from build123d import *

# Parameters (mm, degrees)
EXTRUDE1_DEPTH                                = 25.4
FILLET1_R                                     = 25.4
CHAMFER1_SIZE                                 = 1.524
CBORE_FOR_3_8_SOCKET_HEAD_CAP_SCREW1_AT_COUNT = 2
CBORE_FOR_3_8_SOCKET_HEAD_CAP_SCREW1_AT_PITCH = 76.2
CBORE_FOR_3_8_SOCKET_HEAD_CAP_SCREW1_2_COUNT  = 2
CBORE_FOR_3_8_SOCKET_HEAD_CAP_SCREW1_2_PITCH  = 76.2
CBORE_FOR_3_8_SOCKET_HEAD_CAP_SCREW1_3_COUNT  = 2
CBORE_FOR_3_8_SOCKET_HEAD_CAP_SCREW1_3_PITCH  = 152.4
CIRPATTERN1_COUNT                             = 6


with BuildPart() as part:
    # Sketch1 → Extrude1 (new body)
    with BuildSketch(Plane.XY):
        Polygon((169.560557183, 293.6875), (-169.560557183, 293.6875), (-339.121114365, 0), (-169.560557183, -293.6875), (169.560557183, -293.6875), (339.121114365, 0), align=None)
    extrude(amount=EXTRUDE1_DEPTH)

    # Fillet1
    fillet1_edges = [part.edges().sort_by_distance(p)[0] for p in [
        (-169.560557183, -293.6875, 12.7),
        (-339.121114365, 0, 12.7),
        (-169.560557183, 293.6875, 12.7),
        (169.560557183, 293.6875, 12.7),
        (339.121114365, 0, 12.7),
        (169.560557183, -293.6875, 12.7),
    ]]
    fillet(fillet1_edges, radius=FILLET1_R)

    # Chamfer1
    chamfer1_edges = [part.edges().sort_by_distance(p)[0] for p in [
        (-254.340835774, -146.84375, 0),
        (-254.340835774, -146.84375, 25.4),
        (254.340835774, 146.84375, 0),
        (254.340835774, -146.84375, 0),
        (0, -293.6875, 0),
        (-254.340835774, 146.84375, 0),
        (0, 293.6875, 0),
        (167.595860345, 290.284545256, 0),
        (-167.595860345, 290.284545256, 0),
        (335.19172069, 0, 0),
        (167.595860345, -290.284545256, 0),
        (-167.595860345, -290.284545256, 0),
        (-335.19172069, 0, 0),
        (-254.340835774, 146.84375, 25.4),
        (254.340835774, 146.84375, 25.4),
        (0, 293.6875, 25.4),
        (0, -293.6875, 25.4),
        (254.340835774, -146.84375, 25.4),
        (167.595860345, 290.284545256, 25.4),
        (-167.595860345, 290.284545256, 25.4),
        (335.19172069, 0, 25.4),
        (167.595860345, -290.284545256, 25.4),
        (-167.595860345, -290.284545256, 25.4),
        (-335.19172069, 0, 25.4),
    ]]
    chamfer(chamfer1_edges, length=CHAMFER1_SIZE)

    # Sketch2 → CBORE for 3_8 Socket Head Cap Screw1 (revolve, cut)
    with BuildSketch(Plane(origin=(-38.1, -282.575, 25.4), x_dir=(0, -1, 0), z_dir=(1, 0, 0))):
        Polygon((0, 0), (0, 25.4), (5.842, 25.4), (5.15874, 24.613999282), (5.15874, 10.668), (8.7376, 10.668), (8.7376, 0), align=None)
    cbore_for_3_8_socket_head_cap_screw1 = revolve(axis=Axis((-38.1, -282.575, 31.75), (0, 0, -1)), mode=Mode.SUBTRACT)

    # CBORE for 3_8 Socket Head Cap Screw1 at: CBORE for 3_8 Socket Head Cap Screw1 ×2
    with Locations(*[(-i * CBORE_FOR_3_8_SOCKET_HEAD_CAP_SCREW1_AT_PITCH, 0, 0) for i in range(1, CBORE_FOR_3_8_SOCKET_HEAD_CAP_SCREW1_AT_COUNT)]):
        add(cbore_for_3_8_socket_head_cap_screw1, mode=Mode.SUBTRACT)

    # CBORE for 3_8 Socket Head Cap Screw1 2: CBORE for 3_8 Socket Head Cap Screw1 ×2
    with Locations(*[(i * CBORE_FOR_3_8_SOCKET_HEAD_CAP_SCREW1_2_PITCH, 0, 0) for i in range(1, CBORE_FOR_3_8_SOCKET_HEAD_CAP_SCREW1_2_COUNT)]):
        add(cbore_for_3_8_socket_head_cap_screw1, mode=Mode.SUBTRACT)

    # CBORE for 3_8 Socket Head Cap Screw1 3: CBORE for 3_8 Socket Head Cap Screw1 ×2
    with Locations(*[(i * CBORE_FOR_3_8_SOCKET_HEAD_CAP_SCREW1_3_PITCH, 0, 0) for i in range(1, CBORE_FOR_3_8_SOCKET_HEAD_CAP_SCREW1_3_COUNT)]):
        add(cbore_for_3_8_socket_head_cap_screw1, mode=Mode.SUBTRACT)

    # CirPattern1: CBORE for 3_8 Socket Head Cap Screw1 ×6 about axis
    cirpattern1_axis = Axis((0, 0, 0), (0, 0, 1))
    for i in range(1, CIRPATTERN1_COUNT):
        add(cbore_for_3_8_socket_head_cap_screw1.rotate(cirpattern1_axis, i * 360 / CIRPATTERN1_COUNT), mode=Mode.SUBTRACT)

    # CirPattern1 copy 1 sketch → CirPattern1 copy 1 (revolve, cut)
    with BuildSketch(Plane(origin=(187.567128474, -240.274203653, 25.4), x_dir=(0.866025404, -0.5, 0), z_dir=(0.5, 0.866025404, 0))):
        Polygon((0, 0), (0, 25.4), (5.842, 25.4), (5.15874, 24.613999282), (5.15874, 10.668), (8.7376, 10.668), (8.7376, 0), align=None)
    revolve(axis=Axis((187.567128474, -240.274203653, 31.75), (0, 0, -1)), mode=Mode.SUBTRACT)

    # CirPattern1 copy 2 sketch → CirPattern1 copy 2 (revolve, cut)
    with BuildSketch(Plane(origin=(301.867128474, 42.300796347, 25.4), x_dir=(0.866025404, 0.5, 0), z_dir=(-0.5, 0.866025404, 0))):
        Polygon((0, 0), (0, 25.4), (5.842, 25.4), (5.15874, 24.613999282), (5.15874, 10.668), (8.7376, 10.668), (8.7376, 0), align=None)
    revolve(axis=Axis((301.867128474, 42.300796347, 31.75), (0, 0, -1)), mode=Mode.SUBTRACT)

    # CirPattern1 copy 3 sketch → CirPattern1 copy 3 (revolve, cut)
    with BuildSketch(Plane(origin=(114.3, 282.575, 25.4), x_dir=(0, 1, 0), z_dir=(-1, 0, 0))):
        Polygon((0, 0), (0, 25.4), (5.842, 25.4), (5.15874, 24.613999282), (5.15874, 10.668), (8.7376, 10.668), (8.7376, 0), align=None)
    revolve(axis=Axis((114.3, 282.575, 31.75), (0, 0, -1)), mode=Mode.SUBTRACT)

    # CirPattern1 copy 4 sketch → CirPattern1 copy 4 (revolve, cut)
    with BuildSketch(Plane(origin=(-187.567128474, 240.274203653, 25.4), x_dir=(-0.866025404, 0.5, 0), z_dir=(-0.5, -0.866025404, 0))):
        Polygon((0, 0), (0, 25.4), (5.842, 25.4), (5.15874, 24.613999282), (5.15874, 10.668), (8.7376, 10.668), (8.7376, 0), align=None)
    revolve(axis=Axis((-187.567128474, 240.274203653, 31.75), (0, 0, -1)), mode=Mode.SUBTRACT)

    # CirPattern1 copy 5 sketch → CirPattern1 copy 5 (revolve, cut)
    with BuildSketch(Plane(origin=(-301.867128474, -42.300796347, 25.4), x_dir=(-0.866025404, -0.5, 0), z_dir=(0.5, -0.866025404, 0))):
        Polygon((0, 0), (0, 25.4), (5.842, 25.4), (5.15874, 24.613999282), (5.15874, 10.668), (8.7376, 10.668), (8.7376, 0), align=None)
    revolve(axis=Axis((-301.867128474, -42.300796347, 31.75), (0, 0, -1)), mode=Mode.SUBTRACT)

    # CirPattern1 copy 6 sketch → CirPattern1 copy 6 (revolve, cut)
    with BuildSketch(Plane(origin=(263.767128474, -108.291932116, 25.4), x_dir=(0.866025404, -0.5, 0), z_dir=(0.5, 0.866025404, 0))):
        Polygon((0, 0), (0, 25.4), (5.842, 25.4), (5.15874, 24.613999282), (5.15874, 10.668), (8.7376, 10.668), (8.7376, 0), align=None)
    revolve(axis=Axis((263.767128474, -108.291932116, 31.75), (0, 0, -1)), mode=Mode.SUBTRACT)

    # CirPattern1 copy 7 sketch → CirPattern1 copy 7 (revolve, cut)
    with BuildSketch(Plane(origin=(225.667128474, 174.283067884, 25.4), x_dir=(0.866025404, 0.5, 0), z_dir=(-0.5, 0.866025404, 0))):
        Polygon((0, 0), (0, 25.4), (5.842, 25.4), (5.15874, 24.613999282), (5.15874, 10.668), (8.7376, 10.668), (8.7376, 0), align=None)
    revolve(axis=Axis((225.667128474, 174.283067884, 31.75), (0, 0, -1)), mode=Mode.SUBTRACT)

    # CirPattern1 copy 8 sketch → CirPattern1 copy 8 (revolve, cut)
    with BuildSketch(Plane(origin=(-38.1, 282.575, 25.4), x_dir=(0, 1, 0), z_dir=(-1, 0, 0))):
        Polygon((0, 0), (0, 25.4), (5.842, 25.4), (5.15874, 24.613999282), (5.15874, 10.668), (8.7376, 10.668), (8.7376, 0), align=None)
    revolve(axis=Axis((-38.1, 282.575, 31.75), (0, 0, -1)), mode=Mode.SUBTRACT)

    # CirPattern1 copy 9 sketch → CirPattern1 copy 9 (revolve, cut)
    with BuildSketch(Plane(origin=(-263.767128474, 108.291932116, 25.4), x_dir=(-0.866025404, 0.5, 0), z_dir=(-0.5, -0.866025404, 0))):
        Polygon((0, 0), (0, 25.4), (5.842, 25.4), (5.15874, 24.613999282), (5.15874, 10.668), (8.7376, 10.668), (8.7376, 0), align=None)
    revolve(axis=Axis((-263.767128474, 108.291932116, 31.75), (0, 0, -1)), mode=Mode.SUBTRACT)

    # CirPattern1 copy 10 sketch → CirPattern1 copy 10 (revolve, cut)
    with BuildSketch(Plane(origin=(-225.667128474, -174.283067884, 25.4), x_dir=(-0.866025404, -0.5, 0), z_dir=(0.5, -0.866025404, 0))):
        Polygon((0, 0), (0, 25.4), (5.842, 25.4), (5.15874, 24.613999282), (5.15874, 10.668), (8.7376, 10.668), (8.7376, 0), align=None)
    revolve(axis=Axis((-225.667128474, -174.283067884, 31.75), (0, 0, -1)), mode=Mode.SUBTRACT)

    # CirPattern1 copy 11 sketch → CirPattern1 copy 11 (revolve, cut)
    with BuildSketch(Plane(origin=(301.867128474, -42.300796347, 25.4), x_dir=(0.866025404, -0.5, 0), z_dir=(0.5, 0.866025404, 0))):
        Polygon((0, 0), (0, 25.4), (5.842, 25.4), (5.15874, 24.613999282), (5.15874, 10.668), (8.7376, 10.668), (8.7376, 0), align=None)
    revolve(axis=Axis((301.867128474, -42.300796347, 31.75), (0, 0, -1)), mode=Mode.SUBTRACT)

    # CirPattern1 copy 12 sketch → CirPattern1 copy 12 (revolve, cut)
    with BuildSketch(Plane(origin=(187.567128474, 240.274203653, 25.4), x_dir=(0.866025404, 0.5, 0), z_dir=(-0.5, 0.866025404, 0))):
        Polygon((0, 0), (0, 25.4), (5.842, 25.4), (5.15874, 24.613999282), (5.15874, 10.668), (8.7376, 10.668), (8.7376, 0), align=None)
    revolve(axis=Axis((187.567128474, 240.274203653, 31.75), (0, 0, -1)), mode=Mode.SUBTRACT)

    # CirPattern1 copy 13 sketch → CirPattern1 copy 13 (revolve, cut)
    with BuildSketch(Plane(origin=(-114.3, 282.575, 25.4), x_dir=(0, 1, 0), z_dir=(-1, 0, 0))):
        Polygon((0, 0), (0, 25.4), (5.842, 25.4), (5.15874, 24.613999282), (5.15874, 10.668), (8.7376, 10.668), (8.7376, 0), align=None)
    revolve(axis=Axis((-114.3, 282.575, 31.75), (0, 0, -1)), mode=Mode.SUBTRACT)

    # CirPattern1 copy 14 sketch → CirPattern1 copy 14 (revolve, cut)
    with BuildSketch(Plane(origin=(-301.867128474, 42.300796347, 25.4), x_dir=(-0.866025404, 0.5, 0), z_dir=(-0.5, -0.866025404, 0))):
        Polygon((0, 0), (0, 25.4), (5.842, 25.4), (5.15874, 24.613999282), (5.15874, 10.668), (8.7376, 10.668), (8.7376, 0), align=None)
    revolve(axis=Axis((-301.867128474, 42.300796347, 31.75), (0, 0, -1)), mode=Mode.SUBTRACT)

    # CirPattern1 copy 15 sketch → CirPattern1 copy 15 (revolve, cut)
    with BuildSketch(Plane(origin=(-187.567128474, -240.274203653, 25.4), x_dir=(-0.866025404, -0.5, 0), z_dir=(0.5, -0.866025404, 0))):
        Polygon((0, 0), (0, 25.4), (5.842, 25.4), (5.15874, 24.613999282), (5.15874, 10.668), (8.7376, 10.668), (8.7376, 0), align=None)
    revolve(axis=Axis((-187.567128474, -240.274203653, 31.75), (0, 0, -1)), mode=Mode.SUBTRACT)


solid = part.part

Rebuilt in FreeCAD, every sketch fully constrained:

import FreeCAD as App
import Part
import Sketcher
Q = App.Units.Quantity


def edges_at(feature, points):
    """Names of the edges that pass closest to the given points."""
    edges = feature.Shape.Edges
    near = lambda p: min(range(len(edges)), key=lambda i: edges[i].distToShape(Part.Vertex(*p))[0])
    return sorted({f"Edge{near(p) + 1}" for p in points})

doc = App.newDocument("Part")
body = doc.addObject("PartDesign::Body", "Body")

# Sketch on XY plane
sketch1 = body.newObject("Sketcher::SketchObject", "Sketch")
sketch1.AttachmentSupport = (doc.getObject("XY_Plane"), [""])
sketch1.MapMode = "FlatFace"
sketch1.addGeometry([
    Part.LineSegment(App.Vector(170, 294, 0), App.Vector(-170, 294, 0)),  # 0
    Part.LineSegment(App.Vector(-170, 294, 0), App.Vector(-339, 0, 0)),  # 1
    Part.LineSegment(App.Vector(-339, 0, 0), App.Vector(-170, -294, 0)),  # 2
    Part.LineSegment(App.Vector(-170, -294, 0), App.Vector(170, -294, 0)),  # 3
    Part.LineSegment(App.Vector(170, -294, 0), App.Vector(339, 0, 0)),  # 4
    Part.LineSegment(App.Vector(339, 0, 0), App.Vector(170, 294, 0)),  # 5
], False)
sketch1.addConstraint([
    Sketcher.Constraint("Coincident", 0, 2, 1, 1),
    Sketcher.Constraint("Coincident", 1, 2, 2, 1),
    Sketcher.Constraint("Coincident", 2, 2, 3, 1),
    Sketcher.Constraint("Coincident", 3, 2, 4, 1),
    Sketcher.Constraint("Coincident", 4, 2, 5, 1),
    Sketcher.Constraint("Coincident", 5, 2, 0, 1),
    Sketcher.Constraint("Horizontal", 0),
    Sketcher.Constraint("Horizontal", 3),
    Sketcher.Constraint("Symmetric", 0, 2, 3, 2, -1, 1),
    Sketcher.Constraint("Symmetric", 1, 2, 4, 2, -1, 1),
    Sketcher.Constraint("PointOnObject", 1, 2, -1),
    Sketcher.Constraint("Parallel", 2, 5),
    Sketcher.Constraint("Vertical", 0, 2, 2, 2),
    Sketcher.Constraint("Angle", 1, Q("-120 deg")),
    Sketcher.Constraint("DistanceY", -1, 1, 0, 2, Q("11.5625 in")),
    Sketcher.Constraint("DistanceX", 0, 2, 0, 1, 339.121114),
])
pad1 = body.newObject("PartDesign::Pad", "Pad")
pad1.Profile = sketch1
pad1.Length = Q("1 in")
doc.recompute()

fillet = body.newObject("PartDesign::Fillet", "Fillet")
fillet.Base = (pad1, edges_at(pad1, [
    (-169.561, -293.688, 12.7),
    (-339.121, 0, 12.7),
    (-169.561, 293.688, 12.7),
    (169.561, 293.688, 12.7),
    (339.121, 0, 12.7),
    (169.561, -293.688, 12.7),
]))
fillet.Radius = Q("1 in")
doc.recompute()

chamfer = body.newObject("PartDesign::Chamfer", "Chamfer")
chamfer.Base = (fillet, edges_at(fillet, [
    (-254.341, -146.844, 0),
    (-254.341, -146.844, 25.4),
    (254.341, 146.844, 0),
    (254.341, -146.844, 0),
    (0, -293.688, 0),
    (-254.341, 146.844, 0),
    (0, 293.688, 0),
    (167.596, 290.285, 0),
    (-167.596, 290.285, 0),
    (335.192, 0, 0),
    (167.596, -290.285, 0),
    (-167.596, -290.285, 0),
    (-335.192, 0, 0),
    (-254.341, 146.844, 25.4),
    (254.341, 146.844, 25.4),
    (0, 293.688, 25.4),
    (0, -293.688, 25.4),
    (254.341, -146.844, 25.4),
    (167.596, 290.285, 25.4),
    (-167.596, 290.285, 25.4),
    (335.192, 0, 25.4),
    (167.596, -290.285, 25.4),
    (-167.596, -290.285, 25.4),
    (-335.192, 0, 25.4),
]))
chamfer.Size = Q("0.06 in")

# Sketch on YZ plane
sketch2 = body.newObject("Sketcher::SketchObject", "Sketch001")
sketch2.AttachmentSupport = (doc.getObject("YZ_Plane"), [""])
sketch2.MapMode = "FlatFace"
sketch2.AttachmentOffset = App.Placement(App.Vector(0, 0, -1.5 * 25.4), App.Rotation())
sketch2.addGeometry([
    Part.LineSegment(App.Vector(-282.6, 0, 0), App.Vector(-282.6, 25.4, 0)),  # 0
    Part.LineSegment(App.Vector(-282.6, 25.4, 0), App.Vector(-291.3, 25.4, 0)),  # 1
    Part.LineSegment(App.Vector(-291.3, 25.4, 0), App.Vector(-291.3, 14.7, 0)),  # 2
    Part.LineSegment(App.Vector(-291.3, 14.7, 0), App.Vector(-287.7, 14.7, 0)),  # 3
    Part.LineSegment(App.Vector(-287.7, 14.7, 0), App.Vector(-287.7, 0.8, 0)),  # 4
    Part.LineSegment(App.Vector(-287.7, 0.8, 0), App.Vector(-288.4, 0, 0)),  # 5
    Part.LineSegment(App.Vector(-288.4, 0, 0), App.Vector(-282.6, 0, 0)),  # 6
], False)
sketch2.addGeometry(Part.LineSegment(App.Vector(-282.6, 25.4, 0), App.Vector(-282.6, 0, 0)), True)  # axis
sketch2.addConstraint([
    Sketcher.Constraint("Coincident", 0, 2, 1, 1),
    Sketcher.Constraint("Coincident", 1, 2, 2, 1),
    Sketcher.Constraint("Coincident", 2, 2, 3, 1),
    Sketcher.Constraint("Coincident", 3, 2, 4, 1),
    Sketcher.Constraint("Coincident", 4, 2, 5, 1),
    Sketcher.Constraint("Coincident", 5, 2, 6, 1),
    Sketcher.Constraint("Coincident", 6, 2, 0, 1),
    Sketcher.Constraint("Vertical", 0),
    Sketcher.Constraint("Horizontal", 1),
    Sketcher.Constraint("Vertical", 2),
    Sketcher.Constraint("Horizontal", 3),
    Sketcher.Constraint("Vertical", 4),
    Sketcher.Constraint("Horizontal", 6),
    Sketcher.Constraint("Vertical", 7),
    Sketcher.Constraint("Coincident", 7, 1, 0, 2),
    Sketcher.Constraint("PointOnObject", 5, 2, -1),
    Sketcher.Constraint("PointOnObject", 7, 2, -1),
    Sketcher.Constraint("DistanceY", 0, 1, 0, 2, Q("1 in")),
    Sketcher.Constraint("Angle", 5, Q("-131 deg")),
    Sketcher.Constraint("DistanceX", 6, 1, 6, 2, Q("0.23 in")),
    Sketcher.Constraint("DistanceY", 2, 2, 2, 1, Q("0.42 in")),
    Sketcher.Constraint("DistanceX", 1, 2, 1, 1, Q("0.344 in")),
    Sketcher.Constraint("DistanceX", 3, 1, 3, 2, Q("0.1409 in")),
    Sketcher.Constraint("DistanceX", 0, 2, -1, 1, Q("11.125 in")),
])
groove = body.newObject("PartDesign::Groove", "Groove")
groove.Profile = sketch2
groove.ReferenceAxis = (sketch2, ["Axis0"])
groove.Angle = 360
doc.recompute()

linearpattern = body.newObject("PartDesign::LinearPattern", "LinearPattern")
linearpattern.Originals = [groove]
linearpattern.Direction = (doc.getObject("X_Axis"), [""])
linearpattern.Mode = "offset"
linearpattern.Offset = Q("3 in")
linearpattern.Occurrences = 2
linearpattern.Reversed = True
body.Tip = linearpattern
doc.recompute()

linearpattern2 = body.newObject("PartDesign::LinearPattern", "LinearPattern001")
linearpattern2.Originals = [groove]
linearpattern2.Direction = (doc.getObject("X_Axis"), [""])
linearpattern2.Mode = "offset"
linearpattern2.Offset = Q("3 in")
linearpattern2.Occurrences = 2
body.Tip = linearpattern2
doc.recompute()

linearpattern3 = body.newObject("PartDesign::LinearPattern", "LinearPattern002")
linearpattern3.Originals = [groove]
linearpattern3.Direction = (doc.getObject("X_Axis"), [""])
linearpattern3.Mode = "offset"
linearpattern3.Offset = Q("6 in")
linearpattern3.Occurrences = 2
body.Tip = linearpattern3
doc.recompute()

polarpattern = body.newObject("PartDesign::PolarPattern", "PolarPattern")
polarpattern.Originals = [groove]
polarpattern.Axis = (doc.getObject("Z_Axis"), [""])
polarpattern.Angle = 360
polarpattern.Occurrences = 6
body.Tip = polarpattern

# Sketch on an angled plane
sketch3 = body.newObject("Sketcher::SketchObject", "Sketch002")
sketch3.Placement = App.Placement(App.Vector(187.567128, -240.274204, 25.4), App.Rotation(App.Vector(0.866025404, -0.5, 0), App.Vector(0, 0, -1), App.Vector(0.5, 0.866025404, 0), "ZXY"))
sketch3.addGeometry([
    Part.LineSegment(App.Vector(0, 25.4, 0), App.Vector(0, 0, 0)),  # 0
    Part.LineSegment(App.Vector(0, 0, 0), App.Vector(8.7, 0, 0)),  # 1
    Part.LineSegment(App.Vector(8.7, 0, 0), App.Vector(8.7, 10.7, 0)),  # 2
    Part.LineSegment(App.Vector(8.7, 10.7, 0), App.Vector(5.2, 10.7, 0)),  # 3
    Part.LineSegment(App.Vector(5.2, 10.7, 0), App.Vector(5.2, 24.6, 0)),  # 4
    Part.LineSegment(App.Vector(5.2, 24.6, 0), App.Vector(5.8, 25.4, 0)),  # 5
    Part.LineSegment(App.Vector(5.8, 25.4, 0), App.Vector(0, 25.4, 0)),  # 6
], False)
sketch3.addConstraint([
    Sketcher.Constraint("Coincident", 0, 2, 1, 1),
    Sketcher.Constraint("Coincident", 1, 2, 2, 1),
    Sketcher.Constraint("Coincident", 2, 2, 3, 1),
    Sketcher.Constraint("Coincident", 3, 2, 4, 1),
    Sketcher.Constraint("Coincident", 4, 2, 5, 1),
    Sketcher.Constraint("Coincident", 5, 2, 6, 1),
    Sketcher.Constraint("Coincident", 6, 2, 0, 1),
    Sketcher.Constraint("Vertical", 0),
    Sketcher.Constraint("Horizontal", 1),
    Sketcher.Constraint("Vertical", 2),
    Sketcher.Constraint("Horizontal", 3),
    Sketcher.Constraint("Vertical", 4),
    Sketcher.Constraint("Horizontal", 6),
    Sketcher.Constraint("Coincident", 0, 2, -1, 1),
    Sketcher.Constraint("DistanceY", 0, 2, 0, 1, Q("1 in")),
    Sketcher.Constraint("Angle", 5, Q("49 deg")),
    Sketcher.Constraint("DistanceX", 6, 2, 6, 1, Q("0.23 in")),
    Sketcher.Constraint("DistanceY", 2, 1, 2, 2, Q("0.42 in")),
    Sketcher.Constraint("DistanceX", 1, 1, 1, 2, Q("0.344 in")),
    Sketcher.Constraint("DistanceX", 3, 2, 3, 1, Q("0.1409 in")),
])
groove2 = body.newObject("PartDesign::Groove", "Groove001")
groove2.Profile = sketch3
groove2.ReferenceAxis = (sketch3, ["V_Axis"])
groove2.Angle = 360

# Sketch on an angled plane
sketch4 = body.newObject("Sketcher::SketchObject", "Sketch003")
sketch4.Placement = App.Placement(App.Vector(301.867128, 42.300796, 25.4), App.Rotation(App.Vector(0.866025404, 0.5, 0), App.Vector(0, 0, -1), App.Vector(-0.5, 0.866025404, 0), "ZXY"))
sketch4.addGeometry([
    Part.LineSegment(App.Vector(0, 25.4, 0), App.Vector(0, 0, 0)),  # 0
    Part.LineSegment(App.Vector(0, 0, 0), App.Vector(8.7, 0, 0)),  # 1
    Part.LineSegment(App.Vector(8.7, 0, 0), App.Vector(8.7, 10.7, 0)),  # 2
    Part.LineSegment(App.Vector(8.7, 10.7, 0), App.Vector(5.2, 10.7, 0)),  # 3
    Part.LineSegment(App.Vector(5.2, 10.7, 0), App.Vector(5.2, 24.6, 0)),  # 4
    Part.LineSegment(App.Vector(5.2, 24.6, 0), App.Vector(5.8, 25.4, 0)),  # 5
    Part.LineSegment(App.Vector(5.8, 25.4, 0), App.Vector(0, 25.4, 0)),  # 6
], False)
sketch4.addConstraint([
    Sketcher.Constraint("Coincident", 0, 2, 1, 1),
    Sketcher.Constraint("Coincident", 1, 2, 2, 1),
    Sketcher.Constraint("Coincident", 2, 2, 3, 1),
    Sketcher.Constraint("Coincident", 3, 2, 4, 1),
    Sketcher.Constraint("Coincident", 4, 2, 5, 1),
    Sketcher.Constraint("Coincident", 5, 2, 6, 1),
    Sketcher.Constraint("Coincident", 6, 2, 0, 1),
    Sketcher.Constraint("Vertical", 0),
    Sketcher.Constraint("Horizontal", 1),
    Sketcher.Constraint("Vertical", 2),
    Sketcher.Constraint("Horizontal", 3),
    Sketcher.Constraint("Vertical", 4),
    Sketcher.Constraint("Horizontal", 6),
    Sketcher.Constraint("Coincident", 0, 2, -1, 1),
    Sketcher.Constraint("DistanceY", 0, 2, 0, 1, Q("1 in")),
    Sketcher.Constraint("Angle", 5, Q("49 deg")),
    Sketcher.Constraint("DistanceX", 6, 2, 6, 1, Q("0.23 in")),
    Sketcher.Constraint("DistanceY", 2, 1, 2, 2, Q("0.42 in")),
    Sketcher.Constraint("DistanceX", 1, 1, 1, 2, Q("0.344 in")),
    Sketcher.Constraint("DistanceX", 3, 2, 3, 1, Q("0.1409 in")),
])
groove3 = body.newObject("PartDesign::Groove", "Groove002")
groove3.Profile = sketch4
groove3.ReferenceAxis = (sketch4, ["V_Axis"])
groove3.Angle = 360

# Sketch on YZ plane
sketch5 = body.newObject("Sketcher::SketchObject", "Sketch004")
sketch5.AttachmentSupport = (doc.getObject("YZ_Plane"), [""])
sketch5.MapMode = "FlatFace"
sketch5.AttachmentOffset = App.Placement(App.Vector(0, 0, 4.5 * 25.4), App.Rotation())
sketch5.addGeometry([
    Part.LineSegment(App.Vector(282.6, 0, 0), App.Vector(282.6, 25.4, 0)),  # 0
    Part.LineSegment(App.Vector(282.6, 25.4, 0), App.Vector(291.3, 25.4, 0)),  # 1
    Part.LineSegment(App.Vector(291.3, 25.4, 0), App.Vector(291.3, 14.7, 0)),  # 2
    Part.LineSegment(App.Vector(291.3, 14.7, 0), App.Vector(287.7, 14.7, 0)),  # 3
    Part.LineSegment(App.Vector(287.7, 14.7, 0), App.Vector(287.7, 0.8, 0)),  # 4
    Part.LineSegment(App.Vector(287.7, 0.8, 0), App.Vector(288.4, 0, 0)),  # 5
    Part.LineSegment(App.Vector(288.4, 0, 0), App.Vector(282.6, 0, 0)),  # 6
], False)
sketch5.addGeometry(Part.LineSegment(App.Vector(282.6, 25.4, 0), App.Vector(282.6, 0, 0)), True)  # axis
sketch5.addConstraint([
    Sketcher.Constraint("Coincident", 0, 2, 1, 1),
    Sketcher.Constraint("Coincident", 1, 2, 2, 1),
    Sketcher.Constraint("Coincident", 2, 2, 3, 1),
    Sketcher.Constraint("Coincident", 3, 2, 4, 1),
    Sketcher.Constraint("Coincident", 4, 2, 5, 1),
    Sketcher.Constraint("Coincident", 5, 2, 6, 1),
    Sketcher.Constraint("Coincident", 6, 2, 0, 1),
    Sketcher.Constraint("Vertical", 0),
    Sketcher.Constraint("Horizontal", 1),
    Sketcher.Constraint("Vertical", 2),
    Sketcher.Constraint("Horizontal", 3),
    Sketcher.Constraint("Vertical", 4),
    Sketcher.Constraint("Horizontal", 6),
    Sketcher.Constraint("Vertical", 7),
    Sketcher.Constraint("Coincident", 7, 1, 0, 2),
    Sketcher.Constraint("PointOnObject", 5, 2, -1),
    Sketcher.Constraint("PointOnObject", 7, 2, -1),
    Sketcher.Constraint("DistanceY", 0, 1, 0, 2, Q("1 in")),
    Sketcher.Constraint("Angle", 5, Q("-49 deg")),
    Sketcher.Constraint("DistanceX", 6, 2, 6, 1, Q("0.23 in")),
    Sketcher.Constraint("DistanceY", 2, 2, 2, 1, Q("0.42 in")),
    Sketcher.Constraint("DistanceX", 1, 1, 1, 2, Q("0.344 in")),
    Sketcher.Constraint("DistanceX", 3, 2, 3, 1, Q("0.1409 in")),
    Sketcher.Constraint("DistanceX", -1, 1, 0, 2, Q("11.125 in")),
])
groove4 = body.newObject("PartDesign::Groove", "Groove003")
groove4.Profile = sketch5
groove4.ReferenceAxis = (sketch5, ["Axis0"])
groove4.Angle = 360

# Sketch on an angled plane
sketch6 = body.newObject("Sketcher::SketchObject", "Sketch005")
sketch6.Placement = App.Placement(App.Vector(-187.567128, 240.274204, 25.4), App.Rotation(App.Vector(-0.866025404, 0.5, 0), App.Vector(0, 0, -1), App.Vector(-0.5, -0.866025404, 0), "ZXY"))
sketch6.addGeometry([
    Part.LineSegment(App.Vector(0, 25.4, 0), App.Vector(0, 0, 0)),  # 0
    Part.LineSegment(App.Vector(0, 0, 0), App.Vector(8.7, 0, 0)),  # 1
    Part.LineSegment(App.Vector(8.7, 0, 0), App.Vector(8.7, 10.7, 0)),  # 2
    Part.LineSegment(App.Vector(8.7, 10.7, 0), App.Vector(5.2, 10.7, 0)),  # 3
    Part.LineSegment(App.Vector(5.2, 10.7, 0), App.Vector(5.2, 24.6, 0)),  # 4
    Part.LineSegment(App.Vector(5.2, 24.6, 0), App.Vector(5.8, 25.4, 0)),  # 5
    Part.LineSegment(App.Vector(5.8, 25.4, 0), App.Vector(0, 25.4, 0)),  # 6
], False)
sketch6.addConstraint([
    Sketcher.Constraint("Coincident", 0, 2, 1, 1),
    Sketcher.Constraint("Coincident", 1, 2, 2, 1),
    Sketcher.Constraint("Coincident", 2, 2, 3, 1),
    Sketcher.Constraint("Coincident", 3, 2, 4, 1),
    Sketcher.Constraint("Coincident", 4, 2, 5, 1),
    Sketcher.Constraint("Coincident", 5, 2, 6, 1),
    Sketcher.Constraint("Coincident", 6, 2, 0, 1),
    Sketcher.Constraint("Vertical", 0),
    Sketcher.Constraint("Horizontal", 1),
    Sketcher.Constraint("Vertical", 2),
    Sketcher.Constraint("Horizontal", 3),
    Sketcher.Constraint("Vertical", 4),
    Sketcher.Constraint("Horizontal", 6),
    Sketcher.Constraint("Coincident", 0, 2, -1, 1),
    Sketcher.Constraint("DistanceY", 0, 2, 0, 1, Q("1 in")),
    Sketcher.Constraint("Angle", 5, Q("49 deg")),
    Sketcher.Constraint("DistanceX", 6, 2, 6, 1, Q("0.23 in")),
    Sketcher.Constraint("DistanceY", 2, 1, 2, 2, Q("0.42 in")),
    Sketcher.Constraint("DistanceX", 1, 1, 1, 2, Q("0.344 in")),
    Sketcher.Constraint("DistanceX", 3, 2, 3, 1, Q("0.1409 in")),
])
groove5 = body.newObject("PartDesign::Groove", "Groove004")
groove5.Profile = sketch6
groove5.ReferenceAxis = (sketch6, ["V_Axis"])
groove5.Angle = 360

# Sketch on an angled plane
sketch7 = body.newObject("Sketcher::SketchObject", "Sketch006")
sketch7.Placement = App.Placement(App.Vector(-301.867128, -42.300796, 25.4), App.Rotation(App.Vector(-0.866025404, -0.5, 0), App.Vector(0, 0, -1), App.Vector(0.5, -0.866025404, 0), "ZXY"))
sketch7.addGeometry([
    Part.LineSegment(App.Vector(0, 25.4, 0), App.Vector(0, 0, 0)),  # 0
    Part.LineSegment(App.Vector(0, 0, 0), App.Vector(8.7, 0, 0)),  # 1
    Part.LineSegment(App.Vector(8.7, 0, 0), App.Vector(8.7, 10.7, 0)),  # 2
    Part.LineSegment(App.Vector(8.7, 10.7, 0), App.Vector(5.2, 10.7, 0)),  # 3
    Part.LineSegment(App.Vector(5.2, 10.7, 0), App.Vector(5.2, 24.6, 0)),  # 4
    Part.LineSegment(App.Vector(5.2, 24.6, 0), App.Vector(5.8, 25.4, 0)),  # 5
    Part.LineSegment(App.Vector(5.8, 25.4, 0), App.Vector(0, 25.4, 0)),  # 6
], False)
sketch7.addConstraint([
    Sketcher.Constraint("Coincident", 0, 2, 1, 1),
    Sketcher.Constraint("Coincident", 1, 2, 2, 1),
    Sketcher.Constraint("Coincident", 2, 2, 3, 1),
    Sketcher.Constraint("Coincident", 3, 2, 4, 1),
    Sketcher.Constraint("Coincident", 4, 2, 5, 1),
    Sketcher.Constraint("Coincident", 5, 2, 6, 1),
    Sketcher.Constraint("Coincident", 6, 2, 0, 1),
    Sketcher.Constraint("Vertical", 0),
    Sketcher.Constraint("Horizontal", 1),
    Sketcher.Constraint("Vertical", 2),
    Sketcher.Constraint("Horizontal", 3),
    Sketcher.Constraint("Vertical", 4),
    Sketcher.Constraint("Horizontal", 6),
    Sketcher.Constraint("Coincident", 0, 2, -1, 1),
    Sketcher.Constraint("DistanceY", 0, 2, 0, 1, Q("1 in")),
    Sketcher.Constraint("Angle", 5, Q("49 deg")),
    Sketcher.Constraint("DistanceX", 6, 2, 6, 1, Q("0.23 in")),
    Sketcher.Constraint("DistanceY", 2, 1, 2, 2, Q("0.42 in")),
    Sketcher.Constraint("DistanceX", 1, 1, 1, 2, Q("0.344 in")),
    Sketcher.Constraint("DistanceX", 3, 2, 3, 1, Q("0.1409 in")),
])
groove6 = body.newObject("PartDesign::Groove", "Groove005")
groove6.Profile = sketch7
groove6.ReferenceAxis = (sketch7, ["V_Axis"])
groove6.Angle = 360

# Sketch on an angled plane
sketch8 = body.newObject("Sketcher::SketchObject", "Sketch007")
sketch8.Placement = App.Placement(App.Vector(263.767128, -108.291932, 25.4), App.Rotation(App.Vector(0.866025404, -0.5, 0), App.Vector(0, 0, -1), App.Vector(0.5, 0.866025404, 0), "ZXY"))
sketch8.addGeometry([
    Part.LineSegment(App.Vector(0, 25.4, 0), App.Vector(0, 0, 0)),  # 0
    Part.LineSegment(App.Vector(0, 0, 0), App.Vector(8.7, 0, 0)),  # 1
    Part.LineSegment(App.Vector(8.7, 0, 0), App.Vector(8.7, 10.7, 0)),  # 2
    Part.LineSegment(App.Vector(8.7, 10.7, 0), App.Vector(5.2, 10.7, 0)),  # 3
    Part.LineSegment(App.Vector(5.2, 10.7, 0), App.Vector(5.2, 24.6, 0)),  # 4
    Part.LineSegment(App.Vector(5.2, 24.6, 0), App.Vector(5.8, 25.4, 0)),  # 5
    Part.LineSegment(App.Vector(5.8, 25.4, 0), App.Vector(0, 25.4, 0)),  # 6
], False)
sketch8.addConstraint([
    Sketcher.Constraint("Coincident", 0, 2, 1, 1),
    Sketcher.Constraint("Coincident", 1, 2, 2, 1),
    Sketcher.Constraint("Coincident", 2, 2, 3, 1),
    Sketcher.Constraint("Coincident", 3, 2, 4, 1),
    Sketcher.Constraint("Coincident", 4, 2, 5, 1),
    Sketcher.Constraint("Coincident", 5, 2, 6, 1),
    Sketcher.Constraint("Coincident", 6, 2, 0, 1),
    Sketcher.Constraint("Vertical", 0),
    Sketcher.Constraint("Horizontal", 1),
    Sketcher.Constraint("Vertical", 2),
    Sketcher.Constraint("Horizontal", 3),
    Sketcher.Constraint("Vertical", 4),
    Sketcher.Constraint("Horizontal", 6),
    Sketcher.Constraint("Coincident", 0, 2, -1, 1),
    Sketcher.Constraint("DistanceY", 0, 2, 0, 1, Q("1 in")),
    Sketcher.Constraint("Angle", 5, Q("49 deg")),
    Sketcher.Constraint("DistanceX", 6, 2, 6, 1, Q("0.23 in")),
    Sketcher.Constraint("DistanceY", 2, 1, 2, 2, Q("0.42 in")),
    Sketcher.Constraint("DistanceX", 1, 1, 1, 2, Q("0.344 in")),
    Sketcher.Constraint("DistanceX", 3, 2, 3, 1, Q("0.1409 in")),
])
groove7 = body.newObject("PartDesign::Groove", "Groove006")
groove7.Profile = sketch8
groove7.ReferenceAxis = (sketch8, ["V_Axis"])
groove7.Angle = 360

# Sketch on an angled plane
sketch9 = body.newObject("Sketcher::SketchObject", "Sketch008")
sketch9.Placement = App.Placement(App.Vector(225.667128, 174.283068, 25.4), App.Rotation(App.Vector(0.866025404, 0.5, 0), App.Vector(0, 0, -1), App.Vector(-0.5, 0.866025404, 0), "ZXY"))
sketch9.addGeometry([
    Part.LineSegment(App.Vector(0, 25.4, 0), App.Vector(0, 0, 0)),  # 0
    Part.LineSegment(App.Vector(0, 0, 0), App.Vector(8.7, 0, 0)),  # 1
    Part.LineSegment(App.Vector(8.7, 0, 0), App.Vector(8.7, 10.7, 0)),  # 2
    Part.LineSegment(App.Vector(8.7, 10.7, 0), App.Vector(5.2, 10.7, 0)),  # 3
    Part.LineSegment(App.Vector(5.2, 10.7, 0), App.Vector(5.2, 24.6, 0)),  # 4
    Part.LineSegment(App.Vector(5.2, 24.6, 0), App.Vector(5.8, 25.4, 0)),  # 5
    Part.LineSegment(App.Vector(5.8, 25.4, 0), App.Vector(0, 25.4, 0)),  # 6
], False)
sketch9.addConstraint([
    Sketcher.Constraint("Coincident", 0, 2, 1, 1),
    Sketcher.Constraint("Coincident", 1, 2, 2, 1),
    Sketcher.Constraint("Coincident", 2, 2, 3, 1),
    Sketcher.Constraint("Coincident", 3, 2, 4, 1),
    Sketcher.Constraint("Coincident", 4, 2, 5, 1),
    Sketcher.Constraint("Coincident", 5, 2, 6, 1),
    Sketcher.Constraint("Coincident", 6, 2, 0, 1),
    Sketcher.Constraint("Vertical", 0),
    Sketcher.Constraint("Horizontal", 1),
    Sketcher.Constraint("Vertical", 2),
    Sketcher.Constraint("Horizontal", 3),
    Sketcher.Constraint("Vertical", 4),
    Sketcher.Constraint("Horizontal", 6),
    Sketcher.Constraint("Coincident", 0, 2, -1, 1),
    Sketcher.Constraint("DistanceY", 0, 2, 0, 1, Q("1 in")),
    Sketcher.Constraint("Angle", 5, Q("49 deg")),
    Sketcher.Constraint("DistanceX", 6, 2, 6, 1, Q("0.23 in")),
    Sketcher.Constraint("DistanceY", 2, 1, 2, 2, Q("0.42 in")),
    Sketcher.Constraint("DistanceX", 1, 1, 1, 2, Q("0.344 in")),
    Sketcher.Constraint("DistanceX", 3, 2, 3, 1, Q("0.1409 in")),
])
groove8 = body.newObject("PartDesign::Groove", "Groove007")
groove8.Profile = sketch9
groove8.ReferenceAxis = (sketch9, ["V_Axis"])
groove8.Angle = 360

# Sketch on YZ plane
sketch10 = body.newObject("Sketcher::SketchObject", "Sketch009")
sketch10.AttachmentSupport = (doc.getObject("YZ_Plane"), [""])
sketch10.MapMode = "FlatFace"
sketch10.AttachmentOffset = App.Placement(App.Vector(0, 0, -1.5 * 25.4), App.Rotation())
sketch10.addGeometry([
    Part.LineSegment(App.Vector(282.6, 0, 0), App.Vector(282.6, 25.4, 0)),  # 0
    Part.LineSegment(App.Vector(282.6, 25.4, 0), App.Vector(291.3, 25.4, 0)),  # 1
    Part.LineSegment(App.Vector(291.3, 25.4, 0), App.Vector(291.3, 14.7, 0)),  # 2
    Part.LineSegment(App.Vector(291.3, 14.7, 0), App.Vector(287.7, 14.7, 0)),  # 3
    Part.LineSegment(App.Vector(287.7, 14.7, 0), App.Vector(287.7, 0.8, 0)),  # 4
    Part.LineSegment(App.Vector(287.7, 0.8, 0), App.Vector(288.4, 0, 0)),  # 5
    Part.LineSegment(App.Vector(288.4, 0, 0), App.Vector(282.6, 0, 0)),  # 6
], False)
sketch10.addGeometry(Part.LineSegment(App.Vector(282.6, 25.4, 0), App.Vector(282.6, 0, 0)), True)  # axis
sketch10.addConstraint([
    Sketcher.Constraint("Coincident", 0, 2, 1, 1),
    Sketcher.Constraint("Coincident", 1, 2, 2, 1),
    Sketcher.Constraint("Coincident", 2, 2, 3, 1),
    Sketcher.Constraint("Coincident", 3, 2, 4, 1),
    Sketcher.Constraint("Coincident", 4, 2, 5, 1),
    Sketcher.Constraint("Coincident", 5, 2, 6, 1),
    Sketcher.Constraint("Coincident", 6, 2, 0, 1),
    Sketcher.Constraint("Vertical", 0),
    Sketcher.Constraint("Horizontal", 1),
    Sketcher.Constraint("Vertical", 2),
    Sketcher.Constraint("Horizontal", 3),
    Sketcher.Constraint("Vertical", 4),
    Sketcher.Constraint("Horizontal", 6),
    Sketcher.Constraint("Vertical", 7),
    Sketcher.Constraint("Coincident", 7, 1, 0, 2),
    Sketcher.Constraint("PointOnObject", 5, 2, -1),
    Sketcher.Constraint("PointOnObject", 7, 2, -1),
    Sketcher.Constraint("DistanceY", 0, 1, 0, 2, Q("1 in")),
    Sketcher.Constraint("Angle", 5, Q("-49 deg")),
    Sketcher.Constraint("DistanceX", 6, 2, 6, 1, Q("0.23 in")),
    Sketcher.Constraint("DistanceY", 2, 2, 2, 1, Q("0.42 in")),
    Sketcher.Constraint("DistanceX", 1, 1, 1, 2, Q("0.344 in")),
    Sketcher.Constraint("DistanceX", 3, 2, 3, 1, Q("0.1409 in")),
    Sketcher.Constraint("DistanceX", -1, 1, 0, 2, Q("11.125 in")),
])
groove9 = body.newObject("PartDesign::Groove", "Groove008")
groove9.Profile = sketch10
groove9.ReferenceAxis = (sketch10, ["Axis0"])
groove9.Angle = 360

# Sketch on an angled plane
sketch11 = body.newObject("Sketcher::SketchObject", "Sketch010")
sketch11.Placement = App.Placement(App.Vector(-263.767128, 108.291932, 25.4), App.Rotation(App.Vector(-0.866025404, 0.5, 0), App.Vector(0, 0, -1), App.Vector(-0.5, -0.866025404, 0), "ZXY"))
sketch11.addGeometry([
    Part.LineSegment(App.Vector(0, 25.4, 0), App.Vector(0, 0, 0)),  # 0
    Part.LineSegment(App.Vector(0, 0, 0), App.Vector(8.7, 0, 0)),  # 1
    Part.LineSegment(App.Vector(8.7, 0, 0), App.Vector(8.7, 10.7, 0)),  # 2
    Part.LineSegment(App.Vector(8.7, 10.7, 0), App.Vector(5.2, 10.7, 0)),  # 3
    Part.LineSegment(App.Vector(5.2, 10.7, 0), App.Vector(5.2, 24.6, 0)),  # 4
    Part.LineSegment(App.Vector(5.2, 24.6, 0), App.Vector(5.8, 25.4, 0)),  # 5
    Part.LineSegment(App.Vector(5.8, 25.4, 0), App.Vector(0, 25.4, 0)),  # 6
], False)
sketch11.addConstraint([
    Sketcher.Constraint("Coincident", 0, 2, 1, 1),
    Sketcher.Constraint("Coincident", 1, 2, 2, 1),
    Sketcher.Constraint("Coincident", 2, 2, 3, 1),
    Sketcher.Constraint("Coincident", 3, 2, 4, 1),
    Sketcher.Constraint("Coincident", 4, 2, 5, 1),
    Sketcher.Constraint("Coincident", 5, 2, 6, 1),
    Sketcher.Constraint("Coincident", 6, 2, 0, 1),
    Sketcher.Constraint("Vertical", 0),
    Sketcher.Constraint("Horizontal", 1),
    Sketcher.Constraint("Vertical", 2),
    Sketcher.Constraint("Horizontal", 3),
    Sketcher.Constraint("Vertical", 4),
    Sketcher.Constraint("Horizontal", 6),
    Sketcher.Constraint("Coincident", 0, 2, -1, 1),
    Sketcher.Constraint("DistanceY", 0, 2, 0, 1, Q("1 in")),
    Sketcher.Constraint("Angle", 5, Q("49 deg")),
    Sketcher.Constraint("DistanceX", 6, 2, 6, 1, Q("0.23 in")),
    Sketcher.Constraint("DistanceY", 2, 1, 2, 2, Q("0.42 in")),
    Sketcher.Constraint("DistanceX", 1, 1, 1, 2, Q("0.344 in")),
    Sketcher.Constraint("DistanceX", 3, 2, 3, 1, Q("0.1409 in")),
])
groove10 = body.newObject("PartDesign::Groove", "Groove009")
groove10.Profile = sketch11
groove10.ReferenceAxis = (sketch11, ["V_Axis"])
groove10.Angle = 360

# Sketch on an angled plane
sketch12 = body.newObject("Sketcher::SketchObject", "Sketch011")
sketch12.Placement = App.Placement(App.Vector(-225.667128, -174.283068, 25.4), App.Rotation(App.Vector(-0.866025404, -0.5, 0), App.Vector(0, 0, -1), App.Vector(0.5, -0.866025404, 0), "ZXY"))
sketch12.addGeometry([
    Part.LineSegment(App.Vector(0, 25.4, 0), App.Vector(0, 0, 0)),  # 0
    Part.LineSegment(App.Vector(0, 0, 0), App.Vector(8.7, 0, 0)),  # 1
    Part.LineSegment(App.Vector(8.7, 0, 0), App.Vector(8.7, 10.7, 0)),  # 2
    Part.LineSegment(App.Vector(8.7, 10.7, 0), App.Vector(5.2, 10.7, 0)),  # 3
    Part.LineSegment(App.Vector(5.2, 10.7, 0), App.Vector(5.2, 24.6, 0)),  # 4
    Part.LineSegment(App.Vector(5.2, 24.6, 0), App.Vector(5.8, 25.4, 0)),  # 5
    Part.LineSegment(App.Vector(5.8, 25.4, 0), App.Vector(0, 25.4, 0)),  # 6
], False)
sketch12.addConstraint([
    Sketcher.Constraint("Coincident", 0, 2, 1, 1),
    Sketcher.Constraint("Coincident", 1, 2, 2, 1),
    Sketcher.Constraint("Coincident", 2, 2, 3, 1),
    Sketcher.Constraint("Coincident", 3, 2, 4, 1),
    Sketcher.Constraint("Coincident", 4, 2, 5, 1),
    Sketcher.Constraint("Coincident", 5, 2, 6, 1),
    Sketcher.Constraint("Coincident", 6, 2, 0, 1),
    Sketcher.Constraint("Vertical", 0),
    Sketcher.Constraint("Horizontal", 1),
    Sketcher.Constraint("Vertical", 2),
    Sketcher.Constraint("Horizontal", 3),
    Sketcher.Constraint("Vertical", 4),
    Sketcher.Constraint("Horizontal", 6),
    Sketcher.Constraint("Coincident", 0, 2, -1, 1),
    Sketcher.Constraint("DistanceY", 0, 2, 0, 1, Q("1 in")),
    Sketcher.Constraint("Angle", 5, Q("49 deg")),
    Sketcher.Constraint("DistanceX", 6, 2, 6, 1, Q("0.23 in")),
    Sketcher.Constraint("DistanceY", 2, 1, 2, 2, Q("0.42 in")),
    Sketcher.Constraint("DistanceX", 1, 1, 1, 2, Q("0.344 in")),
    Sketcher.Constraint("DistanceX", 3, 2, 3, 1, Q("0.1409 in")),
])
groove11 = body.newObject("PartDesign::Groove", "Groove010")
groove11.Profile = sketch12
groove11.ReferenceAxis = (sketch12, ["V_Axis"])
groove11.Angle = 360

# Sketch on an angled plane
sketch13 = body.newObject("Sketcher::SketchObject", "Sketch012")
sketch13.Placement = App.Placement(App.Vector(301.867128, -42.300796, 25.4), App.Rotation(App.Vector(0.866025404, -0.5, 0), App.Vector(0, 0, -1), App.Vector(0.5, 0.866025404, 0), "ZXY"))
sketch13.addGeometry([
    Part.LineSegment(App.Vector(0, 25.4, 0), App.Vector(0, 0, 0)),  # 0
    Part.LineSegment(App.Vector(0, 0, 0), App.Vector(8.7, 0, 0)),  # 1
    Part.LineSegment(App.Vector(8.7, 0, 0), App.Vector(8.7, 10.7, 0)),  # 2
    Part.LineSegment(App.Vector(8.7, 10.7, 0), App.Vector(5.2, 10.7, 0)),  # 3
    Part.LineSegment(App.Vector(5.2, 10.7, 0), App.Vector(5.2, 24.6, 0)),  # 4
    Part.LineSegment(App.Vector(5.2, 24.6, 0), App.Vector(5.8, 25.4, 0)),  # 5
    Part.LineSegment(App.Vector(5.8, 25.4, 0), App.Vector(0, 25.4, 0)),  # 6
], False)
sketch13.addConstraint([
    Sketcher.Constraint("Coincident", 0, 2, 1, 1),
    Sketcher.Constraint("Coincident", 1, 2, 2, 1),
    Sketcher.Constraint("Coincident", 2, 2, 3, 1),
    Sketcher.Constraint("Coincident", 3, 2, 4, 1),
    Sketcher.Constraint("Coincident", 4, 2, 5, 1),
    Sketcher.Constraint("Coincident", 5, 2, 6, 1),
    Sketcher.Constraint("Coincident", 6, 2, 0, 1),
    Sketcher.Constraint("Vertical", 0),
    Sketcher.Constraint("Horizontal", 1),
    Sketcher.Constraint("Vertical", 2),
    Sketcher.Constraint("Horizontal", 3),
    Sketcher.Constraint("Vertical", 4),
    Sketcher.Constraint("Horizontal", 6),
    Sketcher.Constraint("Coincident", 0, 2, -1, 1),
    Sketcher.Constraint("DistanceY", 0, 2, 0, 1, Q("1 in")),
    Sketcher.Constraint("Angle", 5, Q("49 deg")),
    Sketcher.Constraint("DistanceX", 6, 2, 6, 1, Q("0.23 in")),
    Sketcher.Constraint("DistanceY", 2, 1, 2, 2, Q("0.42 in")),
    Sketcher.Constraint("DistanceX", 1, 1, 1, 2, Q("0.344 in")),
    Sketcher.Constraint("DistanceX", 3, 2, 3, 1, Q("0.1409 in")),
])
groove12 = body.newObject("PartDesign::Groove", "Groove011")
groove12.Profile = sketch13
groove12.ReferenceAxis = (sketch13, ["V_Axis"])
groove12.Angle = 360

# Sketch on an angled plane
sketch14 = body.newObject("Sketcher::SketchObject", "Sketch013")
sketch14.Placement = App.Placement(App.Vector(187.567128, 240.274204, 25.4), App.Rotation(App.Vector(0.866025404, 0.5, 0), App.Vector(0, 0, -1), App.Vector(-0.5, 0.866025404, 0), "ZXY"))
sketch14.addGeometry([
    Part.LineSegment(App.Vector(0, 25.4, 0), App.Vector(0, 0, 0)),  # 0
    Part.LineSegment(App.Vector(0, 0, 0), App.Vector(8.7, 0, 0)),  # 1
    Part.LineSegment(App.Vector(8.7, 0, 0), App.Vector(8.7, 10.7, 0)),  # 2
    Part.LineSegment(App.Vector(8.7, 10.7, 0), App.Vector(5.2, 10.7, 0)),  # 3
    Part.LineSegment(App.Vector(5.2, 10.7, 0), App.Vector(5.2, 24.6, 0)),  # 4
    Part.LineSegment(App.Vector(5.2, 24.6, 0), App.Vector(5.8, 25.4, 0)),  # 5
    Part.LineSegment(App.Vector(5.8, 25.4, 0), App.Vector(0, 25.4, 0)),  # 6
], False)
sketch14.addConstraint([
    Sketcher.Constraint("Coincident", 0, 2, 1, 1),
    Sketcher.Constraint("Coincident", 1, 2, 2, 1),
    Sketcher.Constraint("Coincident", 2, 2, 3, 1),
    Sketcher.Constraint("Coincident", 3, 2, 4, 1),
    Sketcher.Constraint("Coincident", 4, 2, 5, 1),
    Sketcher.Constraint("Coincident", 5, 2, 6, 1),
    Sketcher.Constraint("Coincident", 6, 2, 0, 1),
    Sketcher.Constraint("Vertical", 0),
    Sketcher.Constraint("Horizontal", 1),
    Sketcher.Constraint("Vertical", 2),
    Sketcher.Constraint("Horizontal", 3),
    Sketcher.Constraint("Vertical", 4),
    Sketcher.Constraint("Horizontal", 6),
    Sketcher.Constraint("Coincident", 0, 2, -1, 1),
    Sketcher.Constraint("DistanceY", 0, 2, 0, 1, Q("1 in")),
    Sketcher.Constraint("Angle", 5, Q("49 deg")),
    Sketcher.Constraint("DistanceX", 6, 2, 6, 1, Q("0.23 in")),
    Sketcher.Constraint("DistanceY", 2, 1, 2, 2, Q("0.42 in")),
    Sketcher.Constraint("DistanceX", 1, 1, 1, 2, Q("0.344 in")),
    Sketcher.Constraint("DistanceX", 3, 2, 3, 1, Q("0.1409 in")),
])
groove13 = body.newObject("PartDesign::Groove", "Groove012")
groove13.Profile = sketch14
groove13.ReferenceAxis = (sketch14, ["V_Axis"])
groove13.Angle = 360

# Sketch on YZ plane
sketch15 = body.newObject("Sketcher::SketchObject", "Sketch014")
sketch15.AttachmentSupport = (doc.getObject("YZ_Plane"), [""])
sketch15.MapMode = "FlatFace"
sketch15.AttachmentOffset = App.Placement(App.Vector(0, 0, -4.5 * 25.4), App.Rotation())
sketch15.addGeometry([
    Part.LineSegment(App.Vector(282.6, 0, 0), App.Vector(282.6, 25.4, 0)),  # 0
    Part.LineSegment(App.Vector(282.6, 25.4, 0), App.Vector(291.3, 25.4, 0)),  # 1
    Part.LineSegment(App.Vector(291.3, 25.4, 0), App.Vector(291.3, 14.7, 0)),  # 2
    Part.LineSegment(App.Vector(291.3, 14.7, 0), App.Vector(287.7, 14.7, 0)),  # 3
    Part.LineSegment(App.Vector(287.7, 14.7, 0), App.Vector(287.7, 0.8, 0)),  # 4
    Part.LineSegment(App.Vector(287.7, 0.8, 0), App.Vector(288.4, 0, 0)),  # 5
    Part.LineSegment(App.Vector(288.4, 0, 0), App.Vector(282.6, 0, 0)),  # 6
], False)
sketch15.addGeometry(Part.LineSegment(App.Vector(282.6, 25.4, 0), App.Vector(282.6, 0, 0)), True)  # axis
sketch15.addConstraint([
    Sketcher.Constraint("Coincident", 0, 2, 1, 1),
    Sketcher.Constraint("Coincident", 1, 2, 2, 1),
    Sketcher.Constraint("Coincident", 2, 2, 3, 1),
    Sketcher.Constraint("Coincident", 3, 2, 4, 1),
    Sketcher.Constraint("Coincident", 4, 2, 5, 1),
    Sketcher.Constraint("Coincident", 5, 2, 6, 1),
    Sketcher.Constraint("Coincident", 6, 2, 0, 1),
    Sketcher.Constraint("Vertical", 0),
    Sketcher.Constraint("Horizontal", 1),
    Sketcher.Constraint("Vertical", 2),
    Sketcher.Constraint("Horizontal", 3),
    Sketcher.Constraint("Vertical", 4),
    Sketcher.Constraint("Horizontal", 6),
    Sketcher.Constraint("Vertical", 7),
    Sketcher.Constraint("Coincident", 7, 1, 0, 2),
    Sketcher.Constraint("PointOnObject", 5, 2, -1),
    Sketcher.Constraint("PointOnObject", 7, 2, -1),
    Sketcher.Constraint("DistanceY", 0, 1, 0, 2, Q("1 in")),
    Sketcher.Constraint("Angle", 5, Q("-49 deg")),
    Sketcher.Constraint("DistanceX", 6, 2, 6, 1, Q("0.23 in")),
    Sketcher.Constraint("DistanceY", 2, 2, 2, 1, Q("0.42 in")),
    Sketcher.Constraint("DistanceX", 1, 1, 1, 2, Q("0.344 in")),
    Sketcher.Constraint("DistanceX", 3, 2, 3, 1, Q("0.1409 in")),
    Sketcher.Constraint("DistanceX", -1, 1, 0, 2, Q("11.125 in")),
])
groove14 = body.newObject("PartDesign::Groove", "Groove013")
groove14.Profile = sketch15
groove14.ReferenceAxis = (sketch15, ["Axis0"])
groove14.Angle = 360

# Sketch on an angled plane
sketch16 = body.newObject("Sketcher::SketchObject", "Sketch015")
sketch16.Placement = App.Placement(App.Vector(-301.867128, 42.300796, 25.4), App.Rotation(App.Vector(-0.866025404, 0.5, 0), App.Vector(0, 0, -1), App.Vector(-0.5, -0.866025404, 0), "ZXY"))
sketch16.addGeometry([
    Part.LineSegment(App.Vector(0, 25.4, 0), App.Vector(0, 0, 0)),  # 0
    Part.LineSegment(App.Vector(0, 0, 0), App.Vector(8.7, 0, 0)),  # 1
    Part.LineSegment(App.Vector(8.7, 0, 0), App.Vector(8.7, 10.7, 0)),  # 2
    Part.LineSegment(App.Vector(8.7, 10.7, 0), App.Vector(5.2, 10.7, 0)),  # 3
    Part.LineSegment(App.Vector(5.2, 10.7, 0), App.Vector(5.2, 24.6, 0)),  # 4
    Part.LineSegment(App.Vector(5.2, 24.6, 0), App.Vector(5.8, 25.4, 0)),  # 5
    Part.LineSegment(App.Vector(5.8, 25.4, 0), App.Vector(0, 25.4, 0)),  # 6
], False)
sketch16.addConstraint([
    Sketcher.Constraint("Coincident", 0, 2, 1, 1),
    Sketcher.Constraint("Coincident", 1, 2, 2, 1),
    Sketcher.Constraint("Coincident", 2, 2, 3, 1),
    Sketcher.Constraint("Coincident", 3, 2, 4, 1),
    Sketcher.Constraint("Coincident", 4, 2, 5, 1),
    Sketcher.Constraint("Coincident", 5, 2, 6, 1),
    Sketcher.Constraint("Coincident", 6, 2, 0, 1),
    Sketcher.Constraint("Vertical", 0),
    Sketcher.Constraint("Horizontal", 1),
    Sketcher.Constraint("Vertical", 2),
    Sketcher.Constraint("Horizontal", 3),
    Sketcher.Constraint("Vertical", 4),
    Sketcher.Constraint("Horizontal", 6),
    Sketcher.Constraint("Coincident", 0, 2, -1, 1),
    Sketcher.Constraint("DistanceY", 0, 2, 0, 1, Q("1 in")),
    Sketcher.Constraint("Angle", 5, Q("49 deg")),
    Sketcher.Constraint("DistanceX", 6, 2, 6, 1, Q("0.23 in")),
    Sketcher.Constraint("DistanceY", 2, 1, 2, 2, Q("0.42 in")),
    Sketcher.Constraint("DistanceX", 1, 1, 1, 2, Q("0.344 in")),
    Sketcher.Constraint("DistanceX", 3, 2, 3, 1, Q("0.1409 in")),
])
groove15 = body.newObject("PartDesign::Groove", "Groove014")
groove15.Profile = sketch16
groove15.ReferenceAxis = (sketch16, ["V_Axis"])
groove15.Angle = 360

# Sketch on an angled plane
sketch17 = body.newObject("Sketcher::SketchObject", "Sketch016")
sketch17.Placement = App.Placement(App.Vector(-187.567128, -240.274204, 25.4), App.Rotation(App.Vector(-0.866025404, -0.5, 0), App.Vector(0, 0, -1), App.Vector(0.5, -0.866025404, 0), "ZXY"))
sketch17.addGeometry([
    Part.LineSegment(App.Vector(0, 25.4, 0), App.Vector(0, 0, 0)),  # 0
    Part.LineSegment(App.Vector(0, 0, 0), App.Vector(8.7, 0, 0)),  # 1
    Part.LineSegment(App.Vector(8.7, 0, 0), App.Vector(8.7, 10.7, 0)),  # 2
    Part.LineSegment(App.Vector(8.7, 10.7, 0), App.Vector(5.2, 10.7, 0)),  # 3
    Part.LineSegment(App.Vector(5.2, 10.7, 0), App.Vector(5.2, 24.6, 0)),  # 4
    Part.LineSegment(App.Vector(5.2, 24.6, 0), App.Vector(5.8, 25.4, 0)),  # 5
    Part.LineSegment(App.Vector(5.8, 25.4, 0), App.Vector(0, 25.4, 0)),  # 6
], False)
sketch17.addConstraint([
    Sketcher.Constraint("Coincident", 0, 2, 1, 1),
    Sketcher.Constraint("Coincident", 1, 2, 2, 1),
    Sketcher.Constraint("Coincident", 2, 2, 3, 1),
    Sketcher.Constraint("Coincident", 3, 2, 4, 1),
    Sketcher.Constraint("Coincident", 4, 2, 5, 1),
    Sketcher.Constraint("Coincident", 5, 2, 6, 1),
    Sketcher.Constraint("Coincident", 6, 2, 0, 1),
    Sketcher.Constraint("Vertical", 0),
    Sketcher.Constraint("Horizontal", 1),
    Sketcher.Constraint("Vertical", 2),
    Sketcher.Constraint("Horizontal", 3),
    Sketcher.Constraint("Vertical", 4),
    Sketcher.Constraint("Horizontal", 6),
    Sketcher.Constraint("Coincident", 0, 2, -1, 1),
    Sketcher.Constraint("DistanceY", 0, 2, 0, 1, Q("1 in")),
    Sketcher.Constraint("Angle", 5, Q("49 deg")),
    Sketcher.Constraint("DistanceX", 6, 2, 6, 1, Q("0.23 in")),
    Sketcher.Constraint("DistanceY", 2, 1, 2, 2, Q("0.42 in")),
    Sketcher.Constraint("DistanceX", 1, 1, 1, 2, Q("0.344 in")),
    Sketcher.Constraint("DistanceX", 3, 2, 3, 1, Q("0.1409 in")),
])
groove16 = body.newObject("PartDesign::Groove", "Groove015")
groove16.Profile = sketch17
groove16.ReferenceAxis = (sketch17, ["V_Axis"])
groove16.Angle = 360

doc.recompute()
